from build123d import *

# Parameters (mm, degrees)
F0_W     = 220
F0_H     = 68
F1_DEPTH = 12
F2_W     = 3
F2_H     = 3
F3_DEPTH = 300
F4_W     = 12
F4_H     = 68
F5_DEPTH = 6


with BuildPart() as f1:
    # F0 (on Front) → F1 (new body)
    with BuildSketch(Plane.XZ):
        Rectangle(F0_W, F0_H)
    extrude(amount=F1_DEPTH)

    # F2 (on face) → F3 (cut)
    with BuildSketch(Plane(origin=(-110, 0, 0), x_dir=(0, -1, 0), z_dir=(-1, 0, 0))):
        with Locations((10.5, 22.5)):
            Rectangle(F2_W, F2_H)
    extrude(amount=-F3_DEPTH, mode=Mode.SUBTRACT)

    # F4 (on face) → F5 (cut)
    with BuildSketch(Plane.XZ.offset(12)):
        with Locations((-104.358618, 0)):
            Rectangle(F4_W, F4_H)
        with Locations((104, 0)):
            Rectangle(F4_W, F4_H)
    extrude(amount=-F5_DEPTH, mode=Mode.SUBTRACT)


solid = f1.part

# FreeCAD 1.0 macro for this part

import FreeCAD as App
import Part
import Sketcher
from FreeCAD import Vector

doc = App.newDocument("Part")
body = doc.addObject("PartDesign::Body", "Body")

# Sketch on XZ plane
sketch1 = body.newObject("Sketcher::SketchObject", "Sketch")
sketch1.AttachmentSupport = (doc.getObject("XZ_Plane"), [""])
sketch1.MapMode = "FlatFace"
sketch1.addGeometry([
    Part.LineSegment(Vector(-110, 34, 0), Vector(-110, -34, 0)),
    Part.LineSegment(Vector(-110, -34, 0), Vector(110, -34, 0)),
    Part.LineSegment(Vector(110, -34, 0), Vector(110, 34, 0)),
    Part.LineSegment(Vector(110, 34, 0), Vector(-110, 34, 0)),
], False)
sketch1.addConstraint([
    Sketcher.Constraint("Coincident", 0, 2, 1, 1),
    Sketcher.Constraint("Coincident", 1, 2, 2, 1),
    Sketcher.Constraint("Coincident", 2, 2, 3, 1),
    Sketcher.Constraint("Coincident", 3, 2, 0, 1),
    Sketcher.Constraint("Vertical", 0),
    Sketcher.Constraint("Horizontal", 1),
    Sketcher.Constraint("Vertical", 2),
    Sketcher.Constraint("Horizontal", 3),
    Sketcher.Constraint("Symmetric", 0, 2, 2, 2, -1, 1),
    Sketcher.Constraint("DistanceX", 1, 1, 1, 2, 220.0),
    Sketcher.Constraint("DistanceY", 0, 2, 0, 1, 68.0),
])
pad1 = body.newObject("PartDesign::Pad", "Pad")
pad1.Profile = sketch1
pad1.Length = 12

# Sketch on YZ plane
sketch2 = body.newObject("Sketcher::SketchObject", "Sketch001")
sketch2.AttachmentSupport = (doc.getObject("YZ_Plane"), [""])
sketch2.MapMode = "FlatFace"
sketch2.AttachmentOffset = App.Placement(Vector(0, 0, -110), App.Rotation())
sketch2.addGeometry([
    Part.LineSegment(Vector(-9, 24, 0), Vector(-9, 21, 0)),
    Part.LineSegment(Vector(-9, 21, 0), Vector(-12, 21, 0)),
    Part.LineSegment(Vector(-12, 21, 0), Vector(-12, 24, 0)),
    Part.LineSegment(Vector(-12, 24, 0), Vector(-9, 24, 0)),
], False)
sketch2.addConstraint([
    Sketcher.Constraint("Coincident", 0, 2, 1, 1),
    Sketcher.Constraint("Coincident", 1, 2, 2, 1),
    Sketcher.Constraint("Coincident", 2, 2, 3, 1),
    Sketcher.Constraint("Coincident", 3, 2, 0, 1),
    Sketcher.Constraint("Vertical", 0),
    Sketcher.Constraint("Horizontal", 1),
    Sketcher.Constraint("Vertical", 2),
    Sketcher.Constraint("Horizontal", 3),
    Sketcher.Constraint("Equal", 3, 0),
    Sketcher.Constraint("DistanceX", 1, 2, 1, 1, 3.0),
    Sketcher.Constraint("DistanceX", 0, 2, -1, 1, 9.0),
    Sketcher.Constraint("DistanceY", -1, 1, 0, 2, 21.0),
])
pocket1 = body.newObject("PartDesign::Pocket", "Pocket")
pocket1.Profile = sketch2
pocket1.Length = 300
pocket1.Reversed = True

# Sketch on XZ plane
sketch3 = body.newObject("Sketcher::SketchObject", "Sketch002")
sketch3.AttachmentSupport = (doc.getObject("XZ_Plane"), [""])
sketch3.MapMode = "FlatFace"
sketch3.AttachmentOffset = App.Placement(Vector(0, 0, 12), App.Rotation())
sketch3.addGeometry([
    Part.LineSegment(Vector(-110.358618, 34, 0), Vector(-110.358618, -34, 0)),  # 0
    Part.LineSegment(Vector(-110.358618, -34, 0), Vector(-98.358618, -34, 0)),  # 1
    Part.LineSegment(Vector(-98.358618, -34, 0), Vector(-98.358618, 34, 0)),  # 2
    Part.LineSegment(Vector(-98.358618, 34, 0), Vector(-110.358618, 34, 0)),  # 3
    Part.LineSegment(Vector(98, 34, 0), Vector(98, -34, 0)),  # 4
    Part.LineSegment(Vector(98, -34, 0), Vector(110, -34, 0)),  # 5
    Part.LineSegment(Vector(110, -34, 0), Vector(110, 34, 0)),  # 6
    Part.LineSegment(Vector(110, 34, 0), Vector(98, 34, 0)),  # 7
], False)
sketch3.addConstraint([
    Sketcher.Constraint("Coincident", 0, 2, 1, 1),
    Sketcher.Constraint("Coincident", 1, 2, 2, 1),
    Sketcher.Constraint("Coincident", 2, 2, 3, 1),
    Sketcher.Constraint("Coincident", 3, 2, 0, 1),
    Sketcher.Constraint("Coincident", 4, 2, 5, 1),
    Sketcher.Constraint("Coincident", 5, 2, 6, 1),
    Sketcher.Constraint("Coincident", 6, 2, 7, 1),
    Sketcher.Constraint("Coincident", 7, 2, 4, 1),
    Sketcher.Constraint("Vertical", 0),
    Sketcher.Constraint("Horizontal", 1),
    Sketcher.Constraint("Vertical", 2),
    Sketcher.Constraint("Horizontal", 3),
    Sketcher.Constraint("Vertical", 4),
    Sketcher.Constraint("Horizontal", 5),
    Sketcher.Constraint("Vertical", 6),
    Sketcher.Constraint("Horizontal", 7),
    Sketcher.Constraint("Horizontal", 1, 2, 4, 2),
    Sketcher.Constraint("Horizontal", 3, 2, 6, 2),
    Sketcher.Constraint("Equal", 3, 5),
    Sketcher.Constraint("DistanceX", 1, 1, 1, 2, 12.0),
    Sketcher.Constraint("DistanceY", 0, 2, 0, 1, 68.0),
    Sketcher.Constraint("DistanceY", 0, 2, -1, 1, 34.0),
    Sketcher.Constraint("DistanceX", -1, 1, 4, 2, 98.0),
    Sketcher.Constraint("DistanceX", 0, 2, -1, 1, 110.358618),
])
pocket2 = body.newObject("PartDesign::Pocket", "Pocket001")
pocket2.Profile = sketch3
pocket2.Length = 6

doc.recompute()
